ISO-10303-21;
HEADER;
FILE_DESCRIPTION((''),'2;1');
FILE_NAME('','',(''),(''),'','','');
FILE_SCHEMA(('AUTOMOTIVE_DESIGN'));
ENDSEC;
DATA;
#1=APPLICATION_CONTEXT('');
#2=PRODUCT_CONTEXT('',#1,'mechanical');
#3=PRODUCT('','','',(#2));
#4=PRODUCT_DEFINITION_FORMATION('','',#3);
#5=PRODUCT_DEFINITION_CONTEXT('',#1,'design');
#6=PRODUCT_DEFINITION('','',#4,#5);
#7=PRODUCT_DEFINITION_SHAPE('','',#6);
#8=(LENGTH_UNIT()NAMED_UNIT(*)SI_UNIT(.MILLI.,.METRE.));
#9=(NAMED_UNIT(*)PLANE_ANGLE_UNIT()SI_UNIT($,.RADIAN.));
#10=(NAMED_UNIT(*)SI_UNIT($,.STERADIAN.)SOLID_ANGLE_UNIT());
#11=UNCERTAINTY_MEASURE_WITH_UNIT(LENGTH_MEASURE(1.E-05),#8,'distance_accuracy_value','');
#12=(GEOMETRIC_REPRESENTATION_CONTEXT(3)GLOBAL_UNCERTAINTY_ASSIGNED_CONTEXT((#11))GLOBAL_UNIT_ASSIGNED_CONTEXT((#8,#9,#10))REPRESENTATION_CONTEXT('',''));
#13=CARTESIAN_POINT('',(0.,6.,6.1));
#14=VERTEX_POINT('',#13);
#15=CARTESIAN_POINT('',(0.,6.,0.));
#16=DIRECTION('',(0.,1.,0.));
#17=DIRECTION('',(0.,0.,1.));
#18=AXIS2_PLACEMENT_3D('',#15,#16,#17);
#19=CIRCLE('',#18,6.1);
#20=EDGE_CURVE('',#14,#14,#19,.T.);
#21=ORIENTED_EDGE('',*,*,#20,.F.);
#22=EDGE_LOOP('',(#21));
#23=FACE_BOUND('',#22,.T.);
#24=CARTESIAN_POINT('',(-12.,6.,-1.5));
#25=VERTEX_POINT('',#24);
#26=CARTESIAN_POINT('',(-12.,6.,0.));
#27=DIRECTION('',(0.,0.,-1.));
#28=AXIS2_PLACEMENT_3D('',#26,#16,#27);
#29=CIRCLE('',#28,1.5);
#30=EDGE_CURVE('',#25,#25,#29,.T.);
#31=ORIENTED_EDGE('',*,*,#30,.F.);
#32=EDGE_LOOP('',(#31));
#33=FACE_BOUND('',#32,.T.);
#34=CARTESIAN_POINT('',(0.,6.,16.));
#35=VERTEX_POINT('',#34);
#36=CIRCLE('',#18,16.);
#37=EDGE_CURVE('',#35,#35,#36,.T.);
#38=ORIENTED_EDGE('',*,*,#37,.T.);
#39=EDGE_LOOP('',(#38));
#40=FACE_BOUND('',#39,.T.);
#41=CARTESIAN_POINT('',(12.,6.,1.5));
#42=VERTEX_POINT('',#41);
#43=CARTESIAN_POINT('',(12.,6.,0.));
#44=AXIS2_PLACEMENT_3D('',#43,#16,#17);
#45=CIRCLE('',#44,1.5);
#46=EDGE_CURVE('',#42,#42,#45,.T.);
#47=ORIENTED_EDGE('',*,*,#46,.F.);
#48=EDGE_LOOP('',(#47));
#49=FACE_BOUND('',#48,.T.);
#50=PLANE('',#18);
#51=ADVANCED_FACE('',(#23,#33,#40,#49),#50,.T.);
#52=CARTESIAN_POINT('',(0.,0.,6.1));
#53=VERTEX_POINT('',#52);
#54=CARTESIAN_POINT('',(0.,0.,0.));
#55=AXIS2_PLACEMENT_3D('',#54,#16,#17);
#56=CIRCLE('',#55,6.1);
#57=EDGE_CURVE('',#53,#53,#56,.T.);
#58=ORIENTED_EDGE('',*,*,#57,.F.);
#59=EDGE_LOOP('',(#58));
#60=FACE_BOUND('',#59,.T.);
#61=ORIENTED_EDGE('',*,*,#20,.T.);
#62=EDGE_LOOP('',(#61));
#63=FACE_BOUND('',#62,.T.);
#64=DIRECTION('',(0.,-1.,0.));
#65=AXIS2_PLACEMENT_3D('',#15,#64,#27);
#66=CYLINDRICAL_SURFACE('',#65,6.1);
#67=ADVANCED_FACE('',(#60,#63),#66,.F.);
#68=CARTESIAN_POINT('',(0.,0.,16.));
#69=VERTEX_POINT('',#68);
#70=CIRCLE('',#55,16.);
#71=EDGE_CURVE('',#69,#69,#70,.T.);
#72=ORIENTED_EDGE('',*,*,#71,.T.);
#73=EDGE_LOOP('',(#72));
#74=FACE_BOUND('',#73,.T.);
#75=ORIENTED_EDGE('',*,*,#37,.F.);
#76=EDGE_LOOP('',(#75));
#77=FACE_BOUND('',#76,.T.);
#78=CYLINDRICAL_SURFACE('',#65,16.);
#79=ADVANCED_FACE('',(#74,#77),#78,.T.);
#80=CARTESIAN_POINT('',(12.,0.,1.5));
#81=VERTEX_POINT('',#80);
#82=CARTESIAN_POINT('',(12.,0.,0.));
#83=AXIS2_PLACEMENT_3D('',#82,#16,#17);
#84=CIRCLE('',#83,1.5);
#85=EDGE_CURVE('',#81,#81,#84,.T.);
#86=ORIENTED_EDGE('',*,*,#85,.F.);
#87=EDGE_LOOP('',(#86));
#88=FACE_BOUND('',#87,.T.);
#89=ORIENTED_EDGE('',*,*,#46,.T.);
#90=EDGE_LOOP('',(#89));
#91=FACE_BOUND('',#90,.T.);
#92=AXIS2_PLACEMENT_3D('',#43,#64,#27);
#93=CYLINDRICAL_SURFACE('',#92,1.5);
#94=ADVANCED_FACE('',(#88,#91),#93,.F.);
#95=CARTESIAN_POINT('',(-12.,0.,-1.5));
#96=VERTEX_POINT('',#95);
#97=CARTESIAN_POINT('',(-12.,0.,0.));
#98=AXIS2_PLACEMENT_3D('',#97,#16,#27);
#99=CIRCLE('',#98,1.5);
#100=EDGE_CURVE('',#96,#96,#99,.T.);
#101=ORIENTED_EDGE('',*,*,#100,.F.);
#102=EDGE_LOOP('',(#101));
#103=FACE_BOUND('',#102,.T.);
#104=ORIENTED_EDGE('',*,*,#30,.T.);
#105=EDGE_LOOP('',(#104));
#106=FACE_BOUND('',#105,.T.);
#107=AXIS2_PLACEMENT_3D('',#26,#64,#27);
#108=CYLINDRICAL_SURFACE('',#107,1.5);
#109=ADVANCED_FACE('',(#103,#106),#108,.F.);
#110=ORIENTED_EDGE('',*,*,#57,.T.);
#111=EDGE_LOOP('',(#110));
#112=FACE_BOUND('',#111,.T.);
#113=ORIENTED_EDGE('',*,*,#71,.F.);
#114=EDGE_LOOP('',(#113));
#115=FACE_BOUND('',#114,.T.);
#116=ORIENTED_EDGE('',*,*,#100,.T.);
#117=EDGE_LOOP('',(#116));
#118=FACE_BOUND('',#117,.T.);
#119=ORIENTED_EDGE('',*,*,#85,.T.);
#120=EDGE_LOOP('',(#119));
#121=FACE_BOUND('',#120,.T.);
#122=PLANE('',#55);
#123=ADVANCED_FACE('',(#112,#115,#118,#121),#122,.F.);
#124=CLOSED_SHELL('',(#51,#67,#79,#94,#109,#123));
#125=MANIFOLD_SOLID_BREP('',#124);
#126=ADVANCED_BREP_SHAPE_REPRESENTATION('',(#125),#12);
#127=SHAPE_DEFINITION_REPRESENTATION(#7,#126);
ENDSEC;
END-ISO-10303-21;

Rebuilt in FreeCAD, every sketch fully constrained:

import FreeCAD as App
import Part
import Sketcher

V = App.Vector
Q = App.Units.Quantity

doc = App.newDocument("Part")
body = doc.addObject("PartDesign::Body", "Body")

sketch1 = body.newObject("Sketcher::SketchObject", "Sketch")
sketch1.AttachmentSupport = (doc.getObject("XZ_Plane"), [""])
sketch1.MapMode = "FlatFace"
sketch1.addGeometry([
    Part.Circle(V(0, 0, 0), V(0, 0, 1), 16),
    Part.Circle(V(-12, 0, 0), V(0, 0, 1), 1.5),
    Part.Circle(V(12, 0, 0), V(0, 0, 1), 1.5),
    Part.Circle(V(0, 0, 0), V(0, 0, 1), 6.1),
], False)
sketch1.addConstraint([
    Sketcher.Constraint("Coincident", 0, 3, -1, 1),
    Sketcher.Constraint("Coincident", 3, 3, -1, 1),
    Sketcher.Constraint("Equal", 1, 2),
    Sketcher.Constraint("Symmetric", 1, 3, 2, 3, -1, 1),
    Sketcher.Constraint("PointOnObject", 1, 3, -1),
    Sketcher.Constraint("Diameter", 0, Q("32 mm")),
    Sketcher.Constraint("Diameter", 1, Q("3 mm")),
    Sketcher.Constraint("Diameter", 3, Q("12.2 mm")),
    Sketcher.Constraint("DistanceX", 1, 3, -1, 1, Q("12 mm")),
])
pad1 = body.newObject("PartDesign::Pad", "Pad")
pad1.Profile = sketch1
pad1.Length = 6
pad1.Reversed = True

doc.recompute()
